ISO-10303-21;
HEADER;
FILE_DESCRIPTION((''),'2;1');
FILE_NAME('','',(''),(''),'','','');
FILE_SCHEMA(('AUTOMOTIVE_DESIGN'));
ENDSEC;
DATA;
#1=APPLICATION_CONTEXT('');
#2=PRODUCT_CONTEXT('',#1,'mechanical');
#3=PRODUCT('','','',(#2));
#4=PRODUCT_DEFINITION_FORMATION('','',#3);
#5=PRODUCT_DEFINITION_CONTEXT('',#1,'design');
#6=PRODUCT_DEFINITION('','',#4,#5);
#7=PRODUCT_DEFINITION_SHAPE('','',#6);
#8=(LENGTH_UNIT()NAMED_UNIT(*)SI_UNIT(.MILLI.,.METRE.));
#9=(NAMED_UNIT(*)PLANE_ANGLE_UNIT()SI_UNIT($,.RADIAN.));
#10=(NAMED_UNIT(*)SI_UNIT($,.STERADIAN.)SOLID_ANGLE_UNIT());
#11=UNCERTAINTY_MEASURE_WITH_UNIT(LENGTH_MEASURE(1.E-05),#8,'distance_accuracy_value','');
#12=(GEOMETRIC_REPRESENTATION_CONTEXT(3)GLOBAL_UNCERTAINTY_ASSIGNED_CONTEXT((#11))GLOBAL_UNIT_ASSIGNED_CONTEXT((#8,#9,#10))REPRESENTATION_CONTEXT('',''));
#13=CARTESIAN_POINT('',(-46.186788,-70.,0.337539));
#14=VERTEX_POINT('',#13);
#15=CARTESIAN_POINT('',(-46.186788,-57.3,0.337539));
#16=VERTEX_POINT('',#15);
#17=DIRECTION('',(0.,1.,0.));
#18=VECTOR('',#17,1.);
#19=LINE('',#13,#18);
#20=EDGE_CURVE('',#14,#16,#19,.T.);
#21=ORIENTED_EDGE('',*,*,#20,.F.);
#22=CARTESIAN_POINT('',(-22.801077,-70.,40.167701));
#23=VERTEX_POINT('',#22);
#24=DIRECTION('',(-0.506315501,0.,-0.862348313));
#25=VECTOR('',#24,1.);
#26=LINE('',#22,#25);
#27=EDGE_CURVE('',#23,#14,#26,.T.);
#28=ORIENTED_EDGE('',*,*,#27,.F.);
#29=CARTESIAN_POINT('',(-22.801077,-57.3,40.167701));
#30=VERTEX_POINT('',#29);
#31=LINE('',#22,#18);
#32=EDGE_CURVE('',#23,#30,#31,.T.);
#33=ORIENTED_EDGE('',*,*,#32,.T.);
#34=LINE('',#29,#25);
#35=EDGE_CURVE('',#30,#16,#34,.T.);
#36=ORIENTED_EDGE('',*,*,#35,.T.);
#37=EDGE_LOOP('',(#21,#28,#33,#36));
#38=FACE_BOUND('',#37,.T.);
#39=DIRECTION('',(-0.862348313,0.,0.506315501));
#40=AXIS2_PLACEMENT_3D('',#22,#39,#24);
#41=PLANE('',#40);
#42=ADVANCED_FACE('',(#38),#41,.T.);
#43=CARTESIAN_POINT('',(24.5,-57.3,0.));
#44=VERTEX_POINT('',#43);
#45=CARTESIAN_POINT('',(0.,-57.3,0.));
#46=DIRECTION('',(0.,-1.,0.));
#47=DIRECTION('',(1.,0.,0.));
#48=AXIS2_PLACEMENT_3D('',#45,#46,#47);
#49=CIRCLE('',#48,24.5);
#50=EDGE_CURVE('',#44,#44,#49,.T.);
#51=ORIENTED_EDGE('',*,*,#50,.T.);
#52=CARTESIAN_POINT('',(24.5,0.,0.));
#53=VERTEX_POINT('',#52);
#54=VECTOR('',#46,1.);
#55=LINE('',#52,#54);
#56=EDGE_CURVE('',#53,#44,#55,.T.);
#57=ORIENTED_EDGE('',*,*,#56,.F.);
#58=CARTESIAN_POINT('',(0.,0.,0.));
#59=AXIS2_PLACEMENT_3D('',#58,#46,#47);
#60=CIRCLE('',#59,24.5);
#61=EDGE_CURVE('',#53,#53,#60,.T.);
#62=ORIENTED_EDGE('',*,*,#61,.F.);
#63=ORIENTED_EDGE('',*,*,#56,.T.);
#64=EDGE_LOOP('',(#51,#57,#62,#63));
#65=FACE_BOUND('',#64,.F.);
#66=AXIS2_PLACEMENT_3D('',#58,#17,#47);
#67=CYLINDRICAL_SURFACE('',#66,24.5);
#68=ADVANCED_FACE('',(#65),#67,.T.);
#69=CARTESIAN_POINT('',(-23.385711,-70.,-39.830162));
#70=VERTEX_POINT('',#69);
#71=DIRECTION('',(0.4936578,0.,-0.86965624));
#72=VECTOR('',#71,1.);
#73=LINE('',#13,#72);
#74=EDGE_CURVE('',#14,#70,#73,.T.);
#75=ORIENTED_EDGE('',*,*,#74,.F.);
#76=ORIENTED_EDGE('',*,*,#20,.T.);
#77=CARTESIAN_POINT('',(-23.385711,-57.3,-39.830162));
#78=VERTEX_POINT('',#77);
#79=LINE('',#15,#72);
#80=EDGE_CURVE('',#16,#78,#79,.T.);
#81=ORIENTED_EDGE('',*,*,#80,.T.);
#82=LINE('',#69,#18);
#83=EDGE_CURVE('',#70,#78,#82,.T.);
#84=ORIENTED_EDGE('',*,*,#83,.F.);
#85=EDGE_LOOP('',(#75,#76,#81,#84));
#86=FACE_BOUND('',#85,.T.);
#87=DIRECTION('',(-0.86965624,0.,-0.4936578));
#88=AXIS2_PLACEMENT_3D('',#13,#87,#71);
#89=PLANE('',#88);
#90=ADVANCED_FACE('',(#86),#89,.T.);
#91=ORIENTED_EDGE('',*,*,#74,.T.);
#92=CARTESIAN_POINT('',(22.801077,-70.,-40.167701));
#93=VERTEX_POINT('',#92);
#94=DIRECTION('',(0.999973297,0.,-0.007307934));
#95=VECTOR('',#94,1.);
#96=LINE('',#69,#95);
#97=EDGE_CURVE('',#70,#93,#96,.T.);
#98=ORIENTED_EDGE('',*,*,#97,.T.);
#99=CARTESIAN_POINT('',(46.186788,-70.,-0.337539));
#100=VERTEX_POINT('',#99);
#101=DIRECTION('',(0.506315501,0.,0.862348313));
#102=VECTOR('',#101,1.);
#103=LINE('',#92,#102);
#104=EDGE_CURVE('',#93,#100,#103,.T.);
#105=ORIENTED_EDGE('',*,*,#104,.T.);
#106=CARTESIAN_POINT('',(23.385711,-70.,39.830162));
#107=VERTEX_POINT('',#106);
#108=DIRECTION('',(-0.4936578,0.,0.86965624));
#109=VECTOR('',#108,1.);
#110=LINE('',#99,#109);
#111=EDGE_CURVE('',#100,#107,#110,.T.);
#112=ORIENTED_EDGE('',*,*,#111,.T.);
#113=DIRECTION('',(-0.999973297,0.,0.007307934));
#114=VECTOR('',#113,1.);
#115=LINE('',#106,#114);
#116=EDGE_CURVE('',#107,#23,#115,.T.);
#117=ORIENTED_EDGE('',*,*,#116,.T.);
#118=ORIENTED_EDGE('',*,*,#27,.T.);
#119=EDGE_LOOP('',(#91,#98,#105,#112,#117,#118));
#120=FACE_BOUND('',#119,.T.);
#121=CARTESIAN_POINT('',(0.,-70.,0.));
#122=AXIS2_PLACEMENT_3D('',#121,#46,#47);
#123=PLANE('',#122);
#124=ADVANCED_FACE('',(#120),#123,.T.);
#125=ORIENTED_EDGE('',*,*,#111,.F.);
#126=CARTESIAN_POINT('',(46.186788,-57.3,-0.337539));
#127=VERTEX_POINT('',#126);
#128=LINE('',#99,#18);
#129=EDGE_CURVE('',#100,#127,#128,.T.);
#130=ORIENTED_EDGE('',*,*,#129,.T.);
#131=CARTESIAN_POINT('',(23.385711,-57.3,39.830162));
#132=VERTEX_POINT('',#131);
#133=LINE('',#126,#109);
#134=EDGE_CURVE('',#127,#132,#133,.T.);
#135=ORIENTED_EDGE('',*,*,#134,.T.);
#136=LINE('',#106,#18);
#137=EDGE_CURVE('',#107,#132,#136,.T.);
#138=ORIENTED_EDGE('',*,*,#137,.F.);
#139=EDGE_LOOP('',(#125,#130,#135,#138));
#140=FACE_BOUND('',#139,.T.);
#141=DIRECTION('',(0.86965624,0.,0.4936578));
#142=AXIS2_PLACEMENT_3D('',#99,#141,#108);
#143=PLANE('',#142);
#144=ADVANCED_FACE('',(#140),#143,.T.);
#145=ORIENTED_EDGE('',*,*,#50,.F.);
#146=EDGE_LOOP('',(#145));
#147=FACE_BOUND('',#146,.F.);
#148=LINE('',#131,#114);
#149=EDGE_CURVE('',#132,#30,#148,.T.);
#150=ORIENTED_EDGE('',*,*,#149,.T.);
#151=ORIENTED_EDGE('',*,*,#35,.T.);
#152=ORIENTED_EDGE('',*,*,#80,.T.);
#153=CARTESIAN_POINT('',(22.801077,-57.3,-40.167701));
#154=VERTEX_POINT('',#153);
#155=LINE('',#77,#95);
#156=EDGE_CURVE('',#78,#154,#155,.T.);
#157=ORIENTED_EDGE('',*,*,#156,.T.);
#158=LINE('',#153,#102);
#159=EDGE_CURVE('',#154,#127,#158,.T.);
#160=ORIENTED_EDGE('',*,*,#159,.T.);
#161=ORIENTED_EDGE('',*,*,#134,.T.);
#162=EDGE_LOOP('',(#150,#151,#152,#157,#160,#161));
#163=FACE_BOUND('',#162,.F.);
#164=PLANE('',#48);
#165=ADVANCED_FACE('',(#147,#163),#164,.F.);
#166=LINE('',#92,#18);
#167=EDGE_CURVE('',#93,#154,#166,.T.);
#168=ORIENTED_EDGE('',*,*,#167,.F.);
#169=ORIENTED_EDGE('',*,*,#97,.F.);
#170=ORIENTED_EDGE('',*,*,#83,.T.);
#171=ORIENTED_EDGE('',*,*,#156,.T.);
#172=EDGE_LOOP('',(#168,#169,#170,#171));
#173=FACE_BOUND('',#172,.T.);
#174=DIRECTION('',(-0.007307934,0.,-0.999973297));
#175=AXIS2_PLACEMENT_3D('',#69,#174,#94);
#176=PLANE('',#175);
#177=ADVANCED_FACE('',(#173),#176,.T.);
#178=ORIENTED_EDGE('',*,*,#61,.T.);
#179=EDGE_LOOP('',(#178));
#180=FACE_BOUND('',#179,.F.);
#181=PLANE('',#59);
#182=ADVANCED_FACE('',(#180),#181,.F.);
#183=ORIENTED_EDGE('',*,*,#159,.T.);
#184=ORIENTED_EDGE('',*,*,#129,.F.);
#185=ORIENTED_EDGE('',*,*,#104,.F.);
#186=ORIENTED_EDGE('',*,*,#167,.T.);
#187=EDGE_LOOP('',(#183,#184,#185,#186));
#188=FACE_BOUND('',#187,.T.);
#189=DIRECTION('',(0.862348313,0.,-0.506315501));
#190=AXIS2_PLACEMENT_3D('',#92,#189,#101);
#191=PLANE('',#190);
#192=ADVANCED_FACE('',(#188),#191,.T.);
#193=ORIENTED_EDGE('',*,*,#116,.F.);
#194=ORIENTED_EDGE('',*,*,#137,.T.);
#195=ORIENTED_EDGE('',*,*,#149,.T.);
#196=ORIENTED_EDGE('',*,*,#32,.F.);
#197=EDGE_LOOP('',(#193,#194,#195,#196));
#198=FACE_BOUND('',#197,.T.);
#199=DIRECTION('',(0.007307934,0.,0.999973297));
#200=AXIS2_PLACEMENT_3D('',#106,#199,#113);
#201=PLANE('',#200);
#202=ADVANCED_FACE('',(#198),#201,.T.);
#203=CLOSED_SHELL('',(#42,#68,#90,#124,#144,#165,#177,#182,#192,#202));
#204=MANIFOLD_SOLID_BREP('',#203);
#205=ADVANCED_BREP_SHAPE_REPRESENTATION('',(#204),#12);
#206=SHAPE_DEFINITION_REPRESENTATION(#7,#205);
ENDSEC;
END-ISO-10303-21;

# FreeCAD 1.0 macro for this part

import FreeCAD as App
import Part
import Sketcher
from FreeCAD import Vector

doc = App.newDocument("Part")
body = doc.addObject("PartDesign::Body", "Body")

sketch1 = body.newObject("Sketcher::SketchObject", "Sketch")
sketch1.AttachmentSupport = (doc.getObject("XZ_Plane"), [""])
sketch1.MapMode = "FlatFace"
sketch1.addGeometry(Part.Circle(Vector(0, 0, 0), Vector(0, 0, 1), 24), False)
sketch1.addConstraint([
    Sketcher.Constraint("Coincident", 0, 3, -1, 1),
    Sketcher.Constraint("Diameter", 0, 49.0),
])
pad1 = body.newObject("PartDesign::Pad", "Pad")
pad1.Profile = sketch1
pad1.Length = 70

sketch2 = body.newObject("Sketcher::SketchObject", "Sketch001")
sketch2.AttachmentSupport = (doc.getObject("XZ_Plane"), [""])
sketch2.MapMode = "FlatFace"
sketch2.AttachmentOffset = App.Placement(Vector(0, 0, 70), App.Rotation())
sketch2.addGeometry([
    Part.LineSegment(Vector(46, 0, 0), Vector(23, 40, 0)),
    Part.LineSegment(Vector(23, 40, 0), Vector(-23, 40, 0)),
    Part.LineSegment(Vector(-23, 40, 0), Vector(-46, 0, 0)),
    Part.LineSegment(Vector(-46, 0, 0), Vector(-23, -40, 0)),
    Part.LineSegment(Vector(-23, -40, 0), Vector(23, -40, 0)),
    Part.LineSegment(Vector(23, -40, 0), Vector(46, 0, 0)),
    Part.Circle(Vector(0, 0, 0), Vector(0, 0, 1), 24),
], False)
sketch2.addConstraint([
    Sketcher.Constraint("Coincident", 0, 2, 1, 1),
    Sketcher.Constraint("Coincident", 1, 2, 2, 1),
    Sketcher.Constraint("Coincident", 2, 2, 3, 1),
    Sketcher.Constraint("Coincident", 3, 2, 4, 1),
    Sketcher.Constraint("Coincident", 4, 2, 5, 1),
    Sketcher.Constraint("Coincident", 5, 2, 0, 1),
    Sketcher.Constraint("Coincident", 6, 3, -1, 1),
    Sketcher.Constraint("Symmetric", 0, 2, 3, 2, -1, 1),
    Sketcher.Constraint("Symmetric", 1, 2, 4, 2, -1, 1),
    Sketcher.Constraint("Symmetric", 2, 2, 5, 2, -1, 1),
    Sketcher.Constraint("Equal", 0, 1),
    Sketcher.Constraint("Equal", 1, 2),
    Sketcher.Constraint("Diameter", 6, 49.0),
    Sketcher.Constraint("DistanceY", -1, 1, 1, 2, 40.167701),
    Sketcher.Constraint("DistanceX", 2, 2, 0, 2, 69.572499),
    Sketcher.Constraint("DistanceY", 3, 2, 2, 2, 40.167701),
    Sketcher.Constraint("Distance", 0, 46.188021),
])
pad2 = body.newObject("PartDesign::Pad", "Pad001")
pad2.Profile = sketch2
pad2.Length = 12.7
pad2.Reversed = True

doc.recompute()
